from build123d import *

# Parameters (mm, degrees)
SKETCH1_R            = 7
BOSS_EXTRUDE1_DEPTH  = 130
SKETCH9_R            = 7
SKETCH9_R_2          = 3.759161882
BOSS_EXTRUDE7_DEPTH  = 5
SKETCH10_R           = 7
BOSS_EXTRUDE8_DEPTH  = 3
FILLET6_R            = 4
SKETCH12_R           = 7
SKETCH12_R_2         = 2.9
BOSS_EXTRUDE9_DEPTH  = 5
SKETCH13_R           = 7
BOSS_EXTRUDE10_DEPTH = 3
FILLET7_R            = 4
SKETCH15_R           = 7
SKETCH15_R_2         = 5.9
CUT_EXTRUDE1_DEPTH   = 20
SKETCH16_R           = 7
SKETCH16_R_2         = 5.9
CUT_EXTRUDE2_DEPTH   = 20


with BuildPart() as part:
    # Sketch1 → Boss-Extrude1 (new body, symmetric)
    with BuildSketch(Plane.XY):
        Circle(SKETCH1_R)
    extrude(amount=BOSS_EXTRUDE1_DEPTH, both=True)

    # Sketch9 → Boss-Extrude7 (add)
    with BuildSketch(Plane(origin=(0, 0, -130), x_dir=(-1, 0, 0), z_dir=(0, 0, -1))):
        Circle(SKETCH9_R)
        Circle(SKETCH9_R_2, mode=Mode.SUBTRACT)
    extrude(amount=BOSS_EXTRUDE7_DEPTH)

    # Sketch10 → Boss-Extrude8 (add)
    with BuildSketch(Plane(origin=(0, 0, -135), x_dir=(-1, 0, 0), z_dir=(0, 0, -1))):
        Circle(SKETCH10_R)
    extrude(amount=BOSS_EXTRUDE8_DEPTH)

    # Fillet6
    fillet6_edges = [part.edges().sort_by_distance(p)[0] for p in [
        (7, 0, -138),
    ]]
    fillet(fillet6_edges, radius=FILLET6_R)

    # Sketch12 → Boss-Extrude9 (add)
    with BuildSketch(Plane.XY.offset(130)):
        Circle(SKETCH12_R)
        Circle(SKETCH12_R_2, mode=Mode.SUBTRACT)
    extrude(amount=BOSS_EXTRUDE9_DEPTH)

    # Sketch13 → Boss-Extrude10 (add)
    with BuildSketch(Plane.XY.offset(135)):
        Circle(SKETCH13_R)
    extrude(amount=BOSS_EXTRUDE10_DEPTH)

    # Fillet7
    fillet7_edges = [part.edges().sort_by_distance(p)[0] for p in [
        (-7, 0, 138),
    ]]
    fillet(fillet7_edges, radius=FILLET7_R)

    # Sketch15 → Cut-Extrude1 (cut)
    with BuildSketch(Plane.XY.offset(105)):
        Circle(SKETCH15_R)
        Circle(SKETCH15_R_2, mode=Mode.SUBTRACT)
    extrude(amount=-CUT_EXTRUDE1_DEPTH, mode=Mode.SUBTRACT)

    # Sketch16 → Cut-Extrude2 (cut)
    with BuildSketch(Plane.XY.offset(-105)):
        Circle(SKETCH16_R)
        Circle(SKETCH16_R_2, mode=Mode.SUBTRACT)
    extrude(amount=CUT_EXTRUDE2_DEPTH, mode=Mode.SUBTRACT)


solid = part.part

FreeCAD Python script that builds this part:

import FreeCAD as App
import Part
import Sketcher
Q = App.Units.Quantity


def edges_at(feature, points):
    """Names of the edges that pass closest to the given points."""
    edges = feature.Shape.Edges
    near = lambda p: min(range(len(edges)), key=lambda i: edges[i].distToShape(Part.Vertex(*p))[0])
    return sorted({f"Edge{near(p) + 1}" for p in points})

doc = App.newDocument("Part")
body = doc.addObject("PartDesign::Body", "Body")

# Sketch on XY plane
sketch1 = body.newObject("Sketcher::SketchObject", "Sketch")
sketch1.AttachmentSupport = (doc.getObject("XY_Plane"), [""])
sketch1.MapMode = "FlatFace"
sketch1.addGeometry(Part.Circle(App.Vector(0, 0, 0), App.Vector(0, 0, 1), 7), False)
sketch1.addConstraint([
    Sketcher.Constraint("Coincident", 0, 3, -1, 1),
    Sketcher.Constraint("Diameter", 0, Q("14 mm")),
])
pad1 = body.newObject("PartDesign::Pad", "Pad")
pad1.Profile = sketch1
pad1.Length = 260
pad1.Midplane = True

# Sketch on XY plane
sketch2 = body.newObject("Sketcher::SketchObject", "Sketch001")
sketch2.AttachmentSupport = (doc.getObject("XY_Plane"), [""])
sketch2.MapMode = "FlatFace"
sketch2.AttachmentOffset = App.Placement(App.Vector(0, 0, -130), App.Rotation())
sketch2.addGeometry([
    Part.Circle(App.Vector(0, 0, 0), App.Vector(0, 0, 1), 7),
    Part.Circle(App.Vector(0, 0, 0), App.Vector(0, 0, 1), 3.8),
], False)
sketch2.addConstraint([
    Sketcher.Constraint("Coincident", 0, 3, -1, 1),
    Sketcher.Constraint("Coincident", 1, 3, -1, 1),
    Sketcher.Constraint("Diameter", 0, Q("14 mm")),
    Sketcher.Constraint("Diameter", 1, Q("7.518324 mm")),
])
pad2 = body.newObject("PartDesign::Pad", "Pad001")
pad2.Profile = sketch2
pad2.Length = 5
pad2.Reversed = True

# Sketch on XY plane
sketch3 = body.newObject("Sketcher::SketchObject", "Sketch002")
sketch3.AttachmentSupport = (doc.getObject("XY_Plane"), [""])
sketch3.MapMode = "FlatFace"
sketch3.AttachmentOffset = App.Placement(App.Vector(0, 0, -135), App.Rotation())
sketch3.addGeometry(Part.Circle(App.Vector(0, 0, 0), App.Vector(0, 0, 1), 7), False)
sketch3.addConstraint([
    Sketcher.Constraint("Coincident", 0, 3, -1, 1),
    Sketcher.Constraint("Diameter", 0, Q("14 mm")),
])
pad3 = body.newObject("PartDesign::Pad", "Pad002")
pad3.Profile = sketch3
pad3.Length = 3
pad3.Reversed = True
doc.recompute()

fillet = body.newObject("PartDesign::Fillet", "Fillet")
fillet.Base = (pad3, edges_at(pad3, [(7, 0, -138)]))
fillet.Radius = 4

# Sketch on XY plane
sketch4 = body.newObject("Sketcher::SketchObject", "Sketch003")
sketch4.AttachmentSupport = (doc.getObject("XY_Plane"), [""])
sketch4.MapMode = "FlatFace"
sketch4.AttachmentOffset = App.Placement(App.Vector(0, 0, 130), App.Rotation())
sketch4.addGeometry([
    Part.Circle(App.Vector(0, 0, 0), App.Vector(0, 0, 1), 7),
    Part.Circle(App.Vector(0, 0, 0), App.Vector(0, 0, 1), 2.9),
], False)
sketch4.addConstraint([
    Sketcher.Constraint("Coincident", 0, 3, -1, 1),
    Sketcher.Constraint("Coincident", 1, 3, -1, 1),
    Sketcher.Constraint("Diameter", 0, Q("14 mm")),
    Sketcher.Constraint("Diameter", 1, Q("5.8 mm")),
])
pad4 = body.newObject("PartDesign::Pad", "Pad003")
pad4.Profile = sketch4
pad4.Length = 5

# Sketch on XY plane
sketch5 = body.newObject("Sketcher::SketchObject", "Sketch004")
sketch5.AttachmentSupport = (doc.getObject("XY_Plane"), [""])
sketch5.MapMode = "FlatFace"
sketch5.AttachmentOffset = App.Placement(App.Vector(0, 0, 135), App.Rotation())
sketch5.addGeometry(Part.Circle(App.Vector(0, 0, 0), App.Vector(0, 0, 1), 7), False)
sketch5.addConstraint([
    Sketcher.Constraint("Coincident", 0, 3, -1, 1),
    Sketcher.Constraint("Diameter", 0, Q("14 mm")),
])
pad5 = body.newObject("PartDesign::Pad", "Pad004")
pad5.Profile = sketch5
pad5.Length = 3
doc.recompute()

fillet2 = body.newObject("PartDesign::Fillet", "Fillet001")
fillet2.Base = (pad5, edges_at(pad5, [(-7, 0, 138)]))
fillet2.Radius = 4

# Sketch on XY plane
sketch6 = body.newObject("Sketcher::SketchObject", "Sketch005")
sketch6.AttachmentSupport = (doc.getObject("XY_Plane"), [""])
sketch6.MapMode = "FlatFace"
sketch6.AttachmentOffset = App.Placement(App.Vector(0, 0, 105), App.Rotation())
sketch6.addGeometry([
    Part.Circle(App.Vector(0, 0, 0), App.Vector(0, 0, 1), 7),
    Part.Circle(App.Vector(0, 0, 0), App.Vector(0, 0, 1), 6),
], False)
sketch6.addConstraint([
    Sketcher.Constraint("Coincident", 0, 3, -1, 1),
    Sketcher.Constraint("Coincident", 1, 3, -1, 1),
    Sketcher.Constraint("Diameter", 0, Q("14 mm")),
    Sketcher.Constraint("Diameter", 1, Q("11.8 mm")),
])
pocket1 = body.newObject("PartDesign::Pocket", "Pocket")
pocket1.Profile = sketch6
pocket1.Length = 20

# Sketch on XY plane
sketch7 = body.newObject("Sketcher::SketchObject", "Sketch006")
sketch7.AttachmentSupport = (doc.getObject("XY_Plane"), [""])
sketch7.MapMode = "FlatFace"
sketch7.AttachmentOffset = App.Placement(App.Vector(0, 0, -105), App.Rotation())
sketch7.addGeometry([
    Part.Circle(App.Vector(0, 0, 0), App.Vector(0, 0, 1), 7),
    Part.Circle(App.Vector(0, 0, 0), App.Vector(0, 0, 1), 6),
], False)
sketch7.addConstraint([
    Sketcher.Constraint("Coincident", 0, 3, -1, 1),
    Sketcher.Constraint("Coincident", 1, 3, -1, 1),
    Sketcher.Constraint("Diameter", 0, Q("14 mm")),
    Sketcher.Constraint("Diameter", 1, Q("11.8 mm")),
])
pocket2 = body.newObject("PartDesign::Pocket", "Pocket001")
pocket2.Profile = sketch7
pocket2.Length = 20
pocket2.Reversed = True

doc.recompute()
